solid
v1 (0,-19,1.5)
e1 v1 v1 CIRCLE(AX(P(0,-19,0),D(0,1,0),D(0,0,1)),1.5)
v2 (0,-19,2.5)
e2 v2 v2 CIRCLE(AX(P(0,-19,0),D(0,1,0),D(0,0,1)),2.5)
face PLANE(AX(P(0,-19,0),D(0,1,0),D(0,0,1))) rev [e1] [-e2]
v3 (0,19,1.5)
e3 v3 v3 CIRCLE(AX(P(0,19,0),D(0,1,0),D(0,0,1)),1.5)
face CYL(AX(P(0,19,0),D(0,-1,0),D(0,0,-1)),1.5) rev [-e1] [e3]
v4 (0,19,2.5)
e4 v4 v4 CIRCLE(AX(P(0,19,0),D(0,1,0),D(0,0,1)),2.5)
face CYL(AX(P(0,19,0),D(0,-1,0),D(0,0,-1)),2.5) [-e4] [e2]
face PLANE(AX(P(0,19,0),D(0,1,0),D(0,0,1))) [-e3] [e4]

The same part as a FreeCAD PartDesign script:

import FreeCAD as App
import Part
import Sketcher
from FreeCAD import Vector
Q = App.Units.Quantity

doc = App.newDocument("Part")
body = doc.addObject("PartDesign::Body", "Body")

# Sketch on XZ plane
sketch1 = body.newObject("Sketcher::SketchObject", "Sketch")
sketch1.AttachmentSupport = (doc.getObject("XZ_Plane"), [""])
sketch1.MapMode = "FlatFace"
sketch1.addGeometry(Part.Circle(Vector(0, 0, 0), Vector(0, 0, 1), 2.5), False)
sketch1.addGeometry(Part.Circle(Vector(0, 0, 0), Vector(0, 0, 1), 1.5), False)
sketch1.addConstraint(Sketcher.Constraint("Coincident", 0, 3, -1, 1))
sketch1.addConstraint(Sketcher.Constraint("Coincident", 1, 3, -1, 1))
sketch1.addConstraint(Sketcher.Constraint("Diameter", 0, Q("5 mm")))
sketch1.addConstraint(Sketcher.Constraint("Diameter", 1, Q("3 mm")))
pad1 = body.newObject("PartDesign::Pad", "Pad")
pad1.Profile = sketch1
pad1.Length = 38
pad1.Midplane = True

doc.recompute()
